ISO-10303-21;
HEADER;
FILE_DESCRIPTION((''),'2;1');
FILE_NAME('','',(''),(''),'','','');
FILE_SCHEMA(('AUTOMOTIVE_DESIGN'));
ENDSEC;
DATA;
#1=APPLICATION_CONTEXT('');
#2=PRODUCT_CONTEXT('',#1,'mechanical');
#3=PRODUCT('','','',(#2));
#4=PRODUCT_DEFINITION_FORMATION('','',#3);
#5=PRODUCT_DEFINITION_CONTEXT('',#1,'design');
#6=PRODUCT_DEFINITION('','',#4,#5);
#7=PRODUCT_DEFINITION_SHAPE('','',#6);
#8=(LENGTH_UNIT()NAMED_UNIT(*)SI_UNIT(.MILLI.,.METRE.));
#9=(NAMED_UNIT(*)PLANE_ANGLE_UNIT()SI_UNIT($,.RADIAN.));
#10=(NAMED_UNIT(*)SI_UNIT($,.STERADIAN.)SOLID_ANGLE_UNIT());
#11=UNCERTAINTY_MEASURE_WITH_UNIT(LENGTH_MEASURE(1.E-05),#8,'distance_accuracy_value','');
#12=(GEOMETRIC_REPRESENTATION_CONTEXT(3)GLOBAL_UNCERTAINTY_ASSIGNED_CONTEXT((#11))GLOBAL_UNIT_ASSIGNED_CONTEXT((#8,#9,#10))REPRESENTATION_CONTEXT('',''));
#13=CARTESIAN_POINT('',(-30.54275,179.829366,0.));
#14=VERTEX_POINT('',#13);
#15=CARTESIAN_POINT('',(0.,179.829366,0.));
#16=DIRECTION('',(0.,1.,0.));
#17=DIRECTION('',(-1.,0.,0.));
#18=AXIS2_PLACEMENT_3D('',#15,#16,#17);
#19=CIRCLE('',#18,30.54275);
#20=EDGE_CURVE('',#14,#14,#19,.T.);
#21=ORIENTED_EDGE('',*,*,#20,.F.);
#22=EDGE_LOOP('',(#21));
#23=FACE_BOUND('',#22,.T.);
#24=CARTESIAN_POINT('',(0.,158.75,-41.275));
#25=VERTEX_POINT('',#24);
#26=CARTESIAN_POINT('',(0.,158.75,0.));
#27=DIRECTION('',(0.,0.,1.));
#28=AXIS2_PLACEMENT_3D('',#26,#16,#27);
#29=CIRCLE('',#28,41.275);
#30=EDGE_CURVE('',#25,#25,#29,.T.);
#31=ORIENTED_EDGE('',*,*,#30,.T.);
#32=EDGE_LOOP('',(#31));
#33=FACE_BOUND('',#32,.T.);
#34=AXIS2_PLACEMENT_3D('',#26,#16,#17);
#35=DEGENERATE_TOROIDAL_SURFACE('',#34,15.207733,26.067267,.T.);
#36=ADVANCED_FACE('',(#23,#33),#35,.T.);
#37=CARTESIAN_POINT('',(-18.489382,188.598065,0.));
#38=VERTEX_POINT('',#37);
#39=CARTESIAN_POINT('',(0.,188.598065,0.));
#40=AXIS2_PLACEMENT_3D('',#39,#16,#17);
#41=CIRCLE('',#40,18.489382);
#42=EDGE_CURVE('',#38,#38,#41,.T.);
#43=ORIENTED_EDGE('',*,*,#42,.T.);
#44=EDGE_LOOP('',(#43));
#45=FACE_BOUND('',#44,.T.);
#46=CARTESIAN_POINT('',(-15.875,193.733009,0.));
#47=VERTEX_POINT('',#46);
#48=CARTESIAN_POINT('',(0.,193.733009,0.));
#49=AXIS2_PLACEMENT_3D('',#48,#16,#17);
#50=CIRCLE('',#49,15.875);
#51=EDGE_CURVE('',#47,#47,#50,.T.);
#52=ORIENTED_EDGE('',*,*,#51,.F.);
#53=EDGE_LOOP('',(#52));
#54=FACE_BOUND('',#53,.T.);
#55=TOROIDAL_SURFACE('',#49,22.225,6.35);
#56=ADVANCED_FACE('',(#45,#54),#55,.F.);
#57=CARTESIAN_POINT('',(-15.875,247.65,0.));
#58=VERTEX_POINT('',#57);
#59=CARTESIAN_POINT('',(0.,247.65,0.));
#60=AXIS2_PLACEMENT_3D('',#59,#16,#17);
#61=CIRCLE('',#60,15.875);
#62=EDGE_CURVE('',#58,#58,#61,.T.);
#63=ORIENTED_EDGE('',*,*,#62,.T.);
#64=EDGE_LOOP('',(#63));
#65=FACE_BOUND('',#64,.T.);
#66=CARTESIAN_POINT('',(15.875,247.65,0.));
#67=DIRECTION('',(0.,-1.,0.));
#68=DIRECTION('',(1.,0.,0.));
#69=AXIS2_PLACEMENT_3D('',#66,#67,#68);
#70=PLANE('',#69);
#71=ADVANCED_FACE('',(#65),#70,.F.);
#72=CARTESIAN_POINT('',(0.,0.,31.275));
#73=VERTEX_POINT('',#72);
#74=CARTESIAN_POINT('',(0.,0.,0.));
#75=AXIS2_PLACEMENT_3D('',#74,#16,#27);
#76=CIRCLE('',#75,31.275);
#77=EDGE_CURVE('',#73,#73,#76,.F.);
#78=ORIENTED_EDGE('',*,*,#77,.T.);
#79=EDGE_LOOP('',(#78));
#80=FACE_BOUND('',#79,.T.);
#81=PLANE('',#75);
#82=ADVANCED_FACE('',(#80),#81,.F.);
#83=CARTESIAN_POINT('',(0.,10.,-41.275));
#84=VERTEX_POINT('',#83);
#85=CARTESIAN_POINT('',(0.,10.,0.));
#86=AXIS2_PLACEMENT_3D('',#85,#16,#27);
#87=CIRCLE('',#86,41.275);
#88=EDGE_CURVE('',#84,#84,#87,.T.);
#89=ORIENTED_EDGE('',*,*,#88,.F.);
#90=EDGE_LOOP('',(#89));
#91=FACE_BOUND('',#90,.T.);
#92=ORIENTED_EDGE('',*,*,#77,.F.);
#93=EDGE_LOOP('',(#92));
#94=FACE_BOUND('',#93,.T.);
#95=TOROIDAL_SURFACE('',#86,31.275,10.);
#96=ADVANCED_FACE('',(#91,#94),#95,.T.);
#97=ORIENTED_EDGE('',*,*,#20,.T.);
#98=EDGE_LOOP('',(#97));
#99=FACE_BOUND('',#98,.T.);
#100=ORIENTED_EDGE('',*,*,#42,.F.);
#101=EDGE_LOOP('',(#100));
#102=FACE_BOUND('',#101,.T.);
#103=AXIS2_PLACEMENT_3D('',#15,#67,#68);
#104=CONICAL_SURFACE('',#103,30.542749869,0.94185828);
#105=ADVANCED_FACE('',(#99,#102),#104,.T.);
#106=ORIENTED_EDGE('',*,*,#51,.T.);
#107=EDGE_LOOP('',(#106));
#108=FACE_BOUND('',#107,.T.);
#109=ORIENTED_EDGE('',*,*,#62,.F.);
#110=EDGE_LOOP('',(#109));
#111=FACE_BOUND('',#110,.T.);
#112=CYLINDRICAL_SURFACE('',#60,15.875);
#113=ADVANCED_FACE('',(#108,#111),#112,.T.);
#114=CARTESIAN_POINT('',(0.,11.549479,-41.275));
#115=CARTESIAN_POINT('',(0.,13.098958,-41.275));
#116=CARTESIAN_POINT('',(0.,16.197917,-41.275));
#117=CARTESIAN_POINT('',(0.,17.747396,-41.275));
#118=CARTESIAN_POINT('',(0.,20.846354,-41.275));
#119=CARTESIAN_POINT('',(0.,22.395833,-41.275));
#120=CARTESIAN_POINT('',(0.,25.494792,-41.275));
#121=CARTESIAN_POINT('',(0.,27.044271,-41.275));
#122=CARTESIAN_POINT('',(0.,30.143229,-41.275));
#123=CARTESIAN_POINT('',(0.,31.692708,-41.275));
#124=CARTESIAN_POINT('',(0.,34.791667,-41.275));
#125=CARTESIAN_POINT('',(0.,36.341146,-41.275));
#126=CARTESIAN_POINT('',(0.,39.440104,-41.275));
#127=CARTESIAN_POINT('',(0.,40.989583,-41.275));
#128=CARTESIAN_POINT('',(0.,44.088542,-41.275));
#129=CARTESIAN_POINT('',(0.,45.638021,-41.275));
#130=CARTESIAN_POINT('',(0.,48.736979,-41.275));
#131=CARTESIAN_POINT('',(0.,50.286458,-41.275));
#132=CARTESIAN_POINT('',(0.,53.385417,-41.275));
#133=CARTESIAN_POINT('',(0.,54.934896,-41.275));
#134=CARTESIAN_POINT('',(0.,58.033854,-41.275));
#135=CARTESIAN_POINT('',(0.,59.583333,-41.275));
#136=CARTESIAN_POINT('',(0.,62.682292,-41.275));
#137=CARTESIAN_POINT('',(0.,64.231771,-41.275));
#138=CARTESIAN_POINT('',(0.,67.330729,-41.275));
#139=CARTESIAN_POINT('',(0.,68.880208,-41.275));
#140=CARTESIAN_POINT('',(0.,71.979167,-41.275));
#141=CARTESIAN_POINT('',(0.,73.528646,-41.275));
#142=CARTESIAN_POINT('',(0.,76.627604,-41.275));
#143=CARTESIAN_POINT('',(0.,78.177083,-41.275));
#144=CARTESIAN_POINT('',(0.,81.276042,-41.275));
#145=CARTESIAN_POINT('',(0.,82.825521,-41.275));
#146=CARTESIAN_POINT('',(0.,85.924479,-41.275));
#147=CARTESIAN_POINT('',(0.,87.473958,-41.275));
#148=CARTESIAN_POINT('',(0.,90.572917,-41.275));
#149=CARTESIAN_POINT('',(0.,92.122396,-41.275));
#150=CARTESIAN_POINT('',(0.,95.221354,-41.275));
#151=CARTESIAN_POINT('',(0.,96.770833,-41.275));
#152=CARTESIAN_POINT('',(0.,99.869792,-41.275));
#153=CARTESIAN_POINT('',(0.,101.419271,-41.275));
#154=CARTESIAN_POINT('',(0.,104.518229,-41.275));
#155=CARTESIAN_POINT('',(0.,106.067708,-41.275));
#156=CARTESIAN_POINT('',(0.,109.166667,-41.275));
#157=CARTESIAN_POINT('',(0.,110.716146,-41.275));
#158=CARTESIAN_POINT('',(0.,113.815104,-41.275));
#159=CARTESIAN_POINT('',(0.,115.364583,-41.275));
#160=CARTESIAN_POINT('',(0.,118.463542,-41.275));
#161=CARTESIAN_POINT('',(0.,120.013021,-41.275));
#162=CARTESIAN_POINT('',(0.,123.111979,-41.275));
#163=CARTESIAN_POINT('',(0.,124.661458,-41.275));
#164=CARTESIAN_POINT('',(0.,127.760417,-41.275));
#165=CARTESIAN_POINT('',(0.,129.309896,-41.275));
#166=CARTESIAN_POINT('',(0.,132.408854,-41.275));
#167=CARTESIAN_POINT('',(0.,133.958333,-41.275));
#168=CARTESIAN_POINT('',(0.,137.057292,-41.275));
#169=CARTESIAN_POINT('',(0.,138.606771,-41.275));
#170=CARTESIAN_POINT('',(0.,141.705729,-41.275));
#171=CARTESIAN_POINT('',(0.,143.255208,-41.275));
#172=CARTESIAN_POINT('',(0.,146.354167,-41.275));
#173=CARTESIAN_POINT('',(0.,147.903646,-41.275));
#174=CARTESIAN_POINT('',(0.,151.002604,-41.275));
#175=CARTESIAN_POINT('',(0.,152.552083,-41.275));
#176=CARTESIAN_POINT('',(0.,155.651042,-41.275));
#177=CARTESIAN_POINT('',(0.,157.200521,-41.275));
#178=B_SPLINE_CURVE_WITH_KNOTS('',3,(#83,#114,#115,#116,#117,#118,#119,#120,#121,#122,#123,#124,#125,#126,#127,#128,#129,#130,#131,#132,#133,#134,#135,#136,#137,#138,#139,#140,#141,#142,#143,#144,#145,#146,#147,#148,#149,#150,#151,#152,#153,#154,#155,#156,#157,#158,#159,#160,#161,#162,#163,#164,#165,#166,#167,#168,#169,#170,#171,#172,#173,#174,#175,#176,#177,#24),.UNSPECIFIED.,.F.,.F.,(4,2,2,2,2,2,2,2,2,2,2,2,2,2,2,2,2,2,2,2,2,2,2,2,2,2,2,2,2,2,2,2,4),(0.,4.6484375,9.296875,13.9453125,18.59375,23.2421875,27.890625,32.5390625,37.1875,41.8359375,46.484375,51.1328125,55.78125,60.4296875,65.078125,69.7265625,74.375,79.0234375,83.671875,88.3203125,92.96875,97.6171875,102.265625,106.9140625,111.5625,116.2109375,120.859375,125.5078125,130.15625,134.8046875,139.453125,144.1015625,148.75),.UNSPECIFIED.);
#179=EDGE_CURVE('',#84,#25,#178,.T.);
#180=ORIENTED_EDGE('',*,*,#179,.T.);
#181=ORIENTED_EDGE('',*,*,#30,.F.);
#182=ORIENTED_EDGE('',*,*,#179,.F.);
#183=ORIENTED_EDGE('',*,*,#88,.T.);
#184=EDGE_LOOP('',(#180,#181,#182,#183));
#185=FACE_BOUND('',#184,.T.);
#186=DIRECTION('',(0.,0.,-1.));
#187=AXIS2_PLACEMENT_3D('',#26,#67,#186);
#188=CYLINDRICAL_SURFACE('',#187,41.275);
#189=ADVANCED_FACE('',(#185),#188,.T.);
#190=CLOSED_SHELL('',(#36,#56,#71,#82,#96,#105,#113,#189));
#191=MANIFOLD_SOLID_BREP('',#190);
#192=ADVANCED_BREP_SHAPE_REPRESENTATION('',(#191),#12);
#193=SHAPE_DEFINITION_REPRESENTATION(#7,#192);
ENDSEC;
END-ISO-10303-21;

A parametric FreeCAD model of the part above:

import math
import FreeCAD as App
import Part
import Sketcher
Q = App.Units.Quantity


def edges_at(feature, points):
    """Names of the edges that pass closest to the given points."""
    edges = feature.Shape.Edges
    near = lambda p: min(range(len(edges)), key=lambda i: edges[i].distToShape(Part.Vertex(*p))[0])
    return sorted({f"Edge{near(p) + 1}" for p in points})

doc = App.newDocument("Part")
body = doc.addObject("PartDesign::Body", "Body")

# Sketch on XZ plane
sketch1 = doc.addObject("Sketcher::SketchObject", "Sketch")
body.addObject(sketch1)
sketch1.AttachmentSupport = (doc.XZ_Plane, [""])
sketch1.MapMode = "FlatFace"
sketch1.addGeometry(Part.Circle(App.Vector(0, 0, 0), App.Vector(0, 0, 1), 41), False)
sketch1.addConstraint(Sketcher.Constraint("Coincident", 0, 3, -1, 1))
sketch1.addConstraint(Sketcher.Constraint("Diameter", 0, Q("3.25 in")))
pad1 = doc.addObject("PartDesign::Pad", "Pad")
body.addObject(pad1)
pad1.Profile = sketch1
pad1.Length = Q("6.25 in")
pad1.Reversed = True

# Sketch on XY plane
sketch2 = doc.addObject("Sketcher::SketchObject", "Sketch001")
body.addObject(sketch2)
sketch2.AttachmentSupport = (doc.XY_Plane, [""])
sketch2.MapMode = "FlatFace"
sketch2.addGeometry(Part.LineSegment(App.Vector(31, 180, 0), App.Vector(18, 189, 0)), False)
sketch2.addGeometry(Part.ArcOfCircle(Part.Circle(App.Vector(22, 194, 0), App.Vector(0, 0, 1), 6), math.radians(180), math.radians(234)), False)
sketch2.addGeometry(Part.LineSegment(App.Vector(16, 194, 0), App.Vector(16, 248, 0)), False)
sketch2.addGeometry(Part.LineSegment(App.Vector(16, 248, 0), App.Vector(0, 248, 0)), False)
sketch2.addGeometry(Part.LineSegment(App.Vector(0, 248, 0), App.Vector(0, 159, 0)), False)
sketch2.addGeometry(Part.LineSegment(App.Vector(0, 159, 0), App.Vector(41, 159, 0)), False)
sketch2.addGeometry(Part.ArcOfCircle(Part.Circle(App.Vector(15, 159, 0), App.Vector(0, 0, 1), 26), math.radians(0), math.radians(54)), False)
sketch2.addConstraint(Sketcher.Constraint("Tangent", 0, 2, 1, 2))
sketch2.addConstraint(Sketcher.Constraint("Tangent", 1, 1, 2, 1))
sketch2.addConstraint(Sketcher.Constraint("Coincident", 2, 2, 3, 1))
sketch2.addConstraint(Sketcher.Constraint("Coincident", 3, 2, 4, 1))
sketch2.addConstraint(Sketcher.Constraint("Coincident", 4, 2, 5, 1))
sketch2.addConstraint(Sketcher.Constraint("Coincident", 5, 2, 6, 1))
sketch2.addConstraint(Sketcher.Constraint("Tangent", 6, 2, 0, 1))
sketch2.addConstraint(Sketcher.Constraint("Vertical", 2))
sketch2.addConstraint(Sketcher.Constraint("Horizontal", 3))
sketch2.addConstraint(Sketcher.Constraint("Vertical", 4))
sketch2.addConstraint(Sketcher.Constraint("Horizontal", 5))
sketch2.addConstraint(Sketcher.Constraint("PointOnObject", 3, 2, -2))
sketch2.addConstraint(Sketcher.Constraint("Horizontal", 6, 3, 4, 2))
sketch2.addConstraint(Sketcher.Constraint("Radius", 1, Q("0.25 in")))
sketch2.addConstraint(Sketcher.Constraint("DistanceY", 4, 2, 4, 1, Q("3.5 in")))
sketch2.addConstraint(Sketcher.Constraint("DistanceX", 1, 1, 5, 2, Q("1 in")))
sketch2.addConstraint(Sketcher.Constraint("DistanceX", 3, 2, 3, 1, Q("0.625 in")))
sketch2.addConstraint(Sketcher.Constraint("DistanceY", -1, 1, 6, 3, Q("6.25 in")))
sketch2.addConstraint(Sketcher.Constraint("Radius", 6, 26.067267))
sketch2.addConstraint(Sketcher.Constraint("DistanceY", 2, 1, 2, 2, 53.916991))
revolution = doc.addObject("PartDesign::Revolution", "Revolution")
body.addObject(revolution)
revolution.Profile = sketch2
revolution.ReferenceAxis = (sketch2, ["V_Axis"])
revolution.Angle = 360
doc.recompute()

fillet = doc.addObject("PartDesign::Fillet", "Fillet")
body.addObject(fillet)
fillet.Base = (revolution, edges_at(revolution, [(0, 0, 41.275)]))
fillet.Radius = 10

doc.recompute()
